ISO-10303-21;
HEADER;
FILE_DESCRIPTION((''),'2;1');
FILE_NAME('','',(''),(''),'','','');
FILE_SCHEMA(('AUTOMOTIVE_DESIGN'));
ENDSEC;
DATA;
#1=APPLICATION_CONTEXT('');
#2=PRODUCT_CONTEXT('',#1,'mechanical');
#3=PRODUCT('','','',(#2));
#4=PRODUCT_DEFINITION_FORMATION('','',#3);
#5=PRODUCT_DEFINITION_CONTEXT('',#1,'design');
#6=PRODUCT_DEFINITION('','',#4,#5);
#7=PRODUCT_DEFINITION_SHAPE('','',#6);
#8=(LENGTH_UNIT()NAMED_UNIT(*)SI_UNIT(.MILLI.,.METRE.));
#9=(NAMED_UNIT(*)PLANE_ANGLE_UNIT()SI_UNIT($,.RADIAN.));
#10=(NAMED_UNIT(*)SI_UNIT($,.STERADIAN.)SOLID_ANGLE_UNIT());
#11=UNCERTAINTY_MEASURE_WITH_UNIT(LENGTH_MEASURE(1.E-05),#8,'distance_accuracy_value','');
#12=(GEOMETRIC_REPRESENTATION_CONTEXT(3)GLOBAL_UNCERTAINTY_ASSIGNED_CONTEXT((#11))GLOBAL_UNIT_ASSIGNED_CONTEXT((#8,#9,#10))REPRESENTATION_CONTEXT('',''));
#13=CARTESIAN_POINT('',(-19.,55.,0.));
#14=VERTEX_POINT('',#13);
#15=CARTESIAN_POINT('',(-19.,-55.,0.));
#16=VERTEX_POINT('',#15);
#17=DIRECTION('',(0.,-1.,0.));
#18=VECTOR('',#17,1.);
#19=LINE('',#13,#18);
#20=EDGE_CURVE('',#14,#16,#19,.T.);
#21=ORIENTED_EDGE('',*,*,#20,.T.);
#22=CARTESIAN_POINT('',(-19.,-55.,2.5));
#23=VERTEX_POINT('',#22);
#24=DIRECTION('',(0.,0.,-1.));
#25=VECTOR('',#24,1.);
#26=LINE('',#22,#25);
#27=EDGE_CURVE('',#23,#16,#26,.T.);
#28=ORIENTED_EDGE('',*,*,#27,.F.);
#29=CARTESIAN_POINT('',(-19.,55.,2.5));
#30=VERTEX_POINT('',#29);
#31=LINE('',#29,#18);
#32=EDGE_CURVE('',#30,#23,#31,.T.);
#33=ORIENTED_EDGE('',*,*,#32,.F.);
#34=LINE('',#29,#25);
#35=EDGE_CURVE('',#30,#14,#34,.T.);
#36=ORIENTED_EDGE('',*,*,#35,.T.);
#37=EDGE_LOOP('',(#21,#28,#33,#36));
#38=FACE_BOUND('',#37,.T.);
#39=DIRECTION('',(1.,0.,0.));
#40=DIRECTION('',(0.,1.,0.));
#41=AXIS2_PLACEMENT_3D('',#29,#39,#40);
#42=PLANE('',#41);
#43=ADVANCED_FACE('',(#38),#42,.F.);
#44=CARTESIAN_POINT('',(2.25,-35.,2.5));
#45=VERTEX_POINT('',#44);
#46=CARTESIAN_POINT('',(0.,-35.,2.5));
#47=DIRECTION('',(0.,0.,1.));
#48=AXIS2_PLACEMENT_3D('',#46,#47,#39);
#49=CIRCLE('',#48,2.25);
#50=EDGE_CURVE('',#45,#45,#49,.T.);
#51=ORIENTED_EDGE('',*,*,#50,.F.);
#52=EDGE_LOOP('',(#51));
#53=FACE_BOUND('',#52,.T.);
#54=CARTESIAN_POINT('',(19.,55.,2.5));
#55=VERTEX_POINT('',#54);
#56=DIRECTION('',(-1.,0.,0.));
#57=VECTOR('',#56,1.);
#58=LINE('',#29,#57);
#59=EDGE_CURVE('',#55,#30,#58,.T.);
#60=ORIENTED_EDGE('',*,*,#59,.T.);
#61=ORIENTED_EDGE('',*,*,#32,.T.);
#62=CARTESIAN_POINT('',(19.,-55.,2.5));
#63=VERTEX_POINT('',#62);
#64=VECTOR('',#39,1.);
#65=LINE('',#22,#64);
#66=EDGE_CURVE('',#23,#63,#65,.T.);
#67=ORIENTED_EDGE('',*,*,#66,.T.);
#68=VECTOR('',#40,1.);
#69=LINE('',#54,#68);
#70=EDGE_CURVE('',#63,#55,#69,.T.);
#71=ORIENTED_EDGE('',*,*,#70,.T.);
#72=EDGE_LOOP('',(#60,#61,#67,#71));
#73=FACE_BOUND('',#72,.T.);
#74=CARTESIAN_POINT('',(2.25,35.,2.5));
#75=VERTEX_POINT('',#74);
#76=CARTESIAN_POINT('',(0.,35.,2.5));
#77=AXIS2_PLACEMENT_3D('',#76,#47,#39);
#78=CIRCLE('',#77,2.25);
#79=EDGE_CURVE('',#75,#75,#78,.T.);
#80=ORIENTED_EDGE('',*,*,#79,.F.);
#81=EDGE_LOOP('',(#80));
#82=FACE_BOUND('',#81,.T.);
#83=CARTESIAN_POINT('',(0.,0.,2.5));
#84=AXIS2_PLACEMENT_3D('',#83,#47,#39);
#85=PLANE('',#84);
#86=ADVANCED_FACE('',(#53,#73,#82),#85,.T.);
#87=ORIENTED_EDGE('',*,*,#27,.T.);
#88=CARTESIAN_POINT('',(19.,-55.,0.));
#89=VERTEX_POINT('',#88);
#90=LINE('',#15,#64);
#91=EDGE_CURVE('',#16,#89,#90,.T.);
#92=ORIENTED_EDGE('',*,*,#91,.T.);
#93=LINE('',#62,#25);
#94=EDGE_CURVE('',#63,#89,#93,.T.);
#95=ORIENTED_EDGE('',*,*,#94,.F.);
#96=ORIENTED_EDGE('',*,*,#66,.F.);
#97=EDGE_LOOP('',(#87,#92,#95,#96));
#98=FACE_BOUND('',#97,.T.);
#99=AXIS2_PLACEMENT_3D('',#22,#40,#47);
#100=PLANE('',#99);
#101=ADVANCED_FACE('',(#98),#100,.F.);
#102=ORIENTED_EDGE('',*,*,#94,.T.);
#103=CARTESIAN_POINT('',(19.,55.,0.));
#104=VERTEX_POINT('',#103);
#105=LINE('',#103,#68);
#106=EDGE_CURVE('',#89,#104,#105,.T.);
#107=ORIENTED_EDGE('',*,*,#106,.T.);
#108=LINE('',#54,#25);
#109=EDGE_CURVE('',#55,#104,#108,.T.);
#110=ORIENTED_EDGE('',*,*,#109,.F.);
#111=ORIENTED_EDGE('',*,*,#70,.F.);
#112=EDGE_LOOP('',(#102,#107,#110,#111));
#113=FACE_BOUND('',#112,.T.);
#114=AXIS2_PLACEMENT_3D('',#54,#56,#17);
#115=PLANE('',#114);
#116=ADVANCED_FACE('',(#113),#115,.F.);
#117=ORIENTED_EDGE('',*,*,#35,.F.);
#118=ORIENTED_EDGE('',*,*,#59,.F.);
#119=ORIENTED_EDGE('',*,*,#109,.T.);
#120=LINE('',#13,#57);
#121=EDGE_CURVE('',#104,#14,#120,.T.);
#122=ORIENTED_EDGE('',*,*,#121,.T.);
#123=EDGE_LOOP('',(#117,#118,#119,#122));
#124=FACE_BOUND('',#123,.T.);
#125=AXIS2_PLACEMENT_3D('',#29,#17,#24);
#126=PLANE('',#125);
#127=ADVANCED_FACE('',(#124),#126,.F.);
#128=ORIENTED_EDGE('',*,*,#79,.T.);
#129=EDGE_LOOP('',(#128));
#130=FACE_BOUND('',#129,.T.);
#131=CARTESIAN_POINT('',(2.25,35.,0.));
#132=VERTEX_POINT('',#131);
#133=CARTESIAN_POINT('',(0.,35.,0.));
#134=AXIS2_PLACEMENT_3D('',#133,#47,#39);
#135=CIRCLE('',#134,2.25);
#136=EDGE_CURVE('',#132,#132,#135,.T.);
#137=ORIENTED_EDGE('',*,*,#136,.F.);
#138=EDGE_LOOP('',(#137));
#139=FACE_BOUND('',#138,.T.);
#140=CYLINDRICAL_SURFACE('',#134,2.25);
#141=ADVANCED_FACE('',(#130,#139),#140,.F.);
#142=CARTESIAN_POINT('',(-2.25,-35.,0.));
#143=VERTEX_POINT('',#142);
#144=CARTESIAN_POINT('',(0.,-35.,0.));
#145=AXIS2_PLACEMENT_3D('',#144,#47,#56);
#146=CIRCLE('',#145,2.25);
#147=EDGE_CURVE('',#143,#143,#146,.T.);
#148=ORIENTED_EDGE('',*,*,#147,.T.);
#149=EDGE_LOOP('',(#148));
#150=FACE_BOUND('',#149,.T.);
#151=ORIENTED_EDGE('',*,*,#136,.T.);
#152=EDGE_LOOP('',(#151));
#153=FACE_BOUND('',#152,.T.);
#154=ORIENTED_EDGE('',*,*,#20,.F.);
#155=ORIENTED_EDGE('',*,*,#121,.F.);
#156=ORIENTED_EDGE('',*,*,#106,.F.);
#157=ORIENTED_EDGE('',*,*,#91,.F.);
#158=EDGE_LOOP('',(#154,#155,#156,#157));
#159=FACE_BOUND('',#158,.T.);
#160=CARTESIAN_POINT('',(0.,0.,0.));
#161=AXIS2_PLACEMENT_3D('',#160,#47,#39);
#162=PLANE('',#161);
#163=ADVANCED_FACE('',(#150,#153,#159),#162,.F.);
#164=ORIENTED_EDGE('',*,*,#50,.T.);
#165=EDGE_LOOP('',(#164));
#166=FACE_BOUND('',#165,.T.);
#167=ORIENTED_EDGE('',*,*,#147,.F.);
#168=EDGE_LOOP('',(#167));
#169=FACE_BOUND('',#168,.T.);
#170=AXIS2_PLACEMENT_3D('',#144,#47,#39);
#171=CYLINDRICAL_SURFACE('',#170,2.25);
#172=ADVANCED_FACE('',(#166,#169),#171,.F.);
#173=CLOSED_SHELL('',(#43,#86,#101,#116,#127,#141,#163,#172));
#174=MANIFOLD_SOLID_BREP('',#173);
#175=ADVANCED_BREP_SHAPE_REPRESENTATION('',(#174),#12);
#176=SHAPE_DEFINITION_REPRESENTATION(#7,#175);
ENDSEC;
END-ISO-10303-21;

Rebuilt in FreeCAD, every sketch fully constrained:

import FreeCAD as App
import Part
import Sketcher
Q = App.Units.Quantity


def add_polygon(sketch, points):
    """Adds a closed chain of lines whose ends are joined by coincident constraints."""
    first, n = sketch.GeometryCount, len(points)
    for a, b in zip(points, points[1:] + points[:1]):
        sketch.addGeometry(Part.LineSegment(App.Vector(*a, 0), App.Vector(*b, 0)), False)
    for i in range(n):
        sketch.addConstraint(Sketcher.Constraint("Coincident", first + i, 2, first + (i + 1) % n, 1))

doc = App.newDocument("Part")
body = doc.addObject("PartDesign::Body", "Body")

# Sketch on XY plane
sketch1 = body.newObject("Sketcher::SketchObject", "Sketch")
sketch1.AttachmentSupport = (doc.getObject("XY_Plane"), [""])
sketch1.MapMode = "FlatFace"
add_polygon(sketch1, [(-19, 55), (-19, -55), (19, -55), (19, 55)])  # lines 0-3
sketch1.addConstraint([
    Sketcher.Constraint("Vertical", 0),
    Sketcher.Constraint("Horizontal", 1),
    Sketcher.Constraint("Vertical", 2),
    Sketcher.Constraint("Horizontal", 3),
    Sketcher.Constraint("Symmetric", 0, 2, 2, 2, -1, 1),
    Sketcher.Constraint("DistanceX", 1, 1, 1, 2, Q("38 mm")),
    Sketcher.Constraint("DistanceY", 0, 2, 0, 1, Q("110 mm")),
])
pad1 = body.newObject("PartDesign::Pad", "Pad")
pad1.Profile = sketch1
pad1.Length = 2.5

# Sketch on XY plane
sketch2 = body.newObject("Sketcher::SketchObject", "Sketch001")
sketch2.AttachmentSupport = (doc.getObject("XY_Plane"), [""])
sketch2.MapMode = "FlatFace"
sketch2.AttachmentOffset = App.Placement(App.Vector(0, 0, 2.5), App.Rotation())
sketch2.addGeometry([
    Part.Circle(App.Vector(0, 35, 0), App.Vector(0, 0, 1), 2.25),
    Part.Circle(App.Vector(0, -35, 0), App.Vector(0, 0, 1), 2.25),
], False)
sketch2.addConstraint([
    Sketcher.Constraint("Equal", 0, 1),
    Sketcher.Constraint("Symmetric", 0, 3, 1, 3, -1, 1),
    Sketcher.Constraint("PointOnObject", 0, 3, -2),
    Sketcher.Constraint("Diameter", 0, Q("4.5 mm")),
    Sketcher.Constraint("DistanceY", -1, 1, 0, 3, Q("35 mm")),
])
pocket1 = body.newObject("PartDesign::Pocket", "Pocket")
pocket1.Profile = sketch2
pocket1.Type = "ThroughAll"
pocket1.Midplane = True

doc.recompute()
